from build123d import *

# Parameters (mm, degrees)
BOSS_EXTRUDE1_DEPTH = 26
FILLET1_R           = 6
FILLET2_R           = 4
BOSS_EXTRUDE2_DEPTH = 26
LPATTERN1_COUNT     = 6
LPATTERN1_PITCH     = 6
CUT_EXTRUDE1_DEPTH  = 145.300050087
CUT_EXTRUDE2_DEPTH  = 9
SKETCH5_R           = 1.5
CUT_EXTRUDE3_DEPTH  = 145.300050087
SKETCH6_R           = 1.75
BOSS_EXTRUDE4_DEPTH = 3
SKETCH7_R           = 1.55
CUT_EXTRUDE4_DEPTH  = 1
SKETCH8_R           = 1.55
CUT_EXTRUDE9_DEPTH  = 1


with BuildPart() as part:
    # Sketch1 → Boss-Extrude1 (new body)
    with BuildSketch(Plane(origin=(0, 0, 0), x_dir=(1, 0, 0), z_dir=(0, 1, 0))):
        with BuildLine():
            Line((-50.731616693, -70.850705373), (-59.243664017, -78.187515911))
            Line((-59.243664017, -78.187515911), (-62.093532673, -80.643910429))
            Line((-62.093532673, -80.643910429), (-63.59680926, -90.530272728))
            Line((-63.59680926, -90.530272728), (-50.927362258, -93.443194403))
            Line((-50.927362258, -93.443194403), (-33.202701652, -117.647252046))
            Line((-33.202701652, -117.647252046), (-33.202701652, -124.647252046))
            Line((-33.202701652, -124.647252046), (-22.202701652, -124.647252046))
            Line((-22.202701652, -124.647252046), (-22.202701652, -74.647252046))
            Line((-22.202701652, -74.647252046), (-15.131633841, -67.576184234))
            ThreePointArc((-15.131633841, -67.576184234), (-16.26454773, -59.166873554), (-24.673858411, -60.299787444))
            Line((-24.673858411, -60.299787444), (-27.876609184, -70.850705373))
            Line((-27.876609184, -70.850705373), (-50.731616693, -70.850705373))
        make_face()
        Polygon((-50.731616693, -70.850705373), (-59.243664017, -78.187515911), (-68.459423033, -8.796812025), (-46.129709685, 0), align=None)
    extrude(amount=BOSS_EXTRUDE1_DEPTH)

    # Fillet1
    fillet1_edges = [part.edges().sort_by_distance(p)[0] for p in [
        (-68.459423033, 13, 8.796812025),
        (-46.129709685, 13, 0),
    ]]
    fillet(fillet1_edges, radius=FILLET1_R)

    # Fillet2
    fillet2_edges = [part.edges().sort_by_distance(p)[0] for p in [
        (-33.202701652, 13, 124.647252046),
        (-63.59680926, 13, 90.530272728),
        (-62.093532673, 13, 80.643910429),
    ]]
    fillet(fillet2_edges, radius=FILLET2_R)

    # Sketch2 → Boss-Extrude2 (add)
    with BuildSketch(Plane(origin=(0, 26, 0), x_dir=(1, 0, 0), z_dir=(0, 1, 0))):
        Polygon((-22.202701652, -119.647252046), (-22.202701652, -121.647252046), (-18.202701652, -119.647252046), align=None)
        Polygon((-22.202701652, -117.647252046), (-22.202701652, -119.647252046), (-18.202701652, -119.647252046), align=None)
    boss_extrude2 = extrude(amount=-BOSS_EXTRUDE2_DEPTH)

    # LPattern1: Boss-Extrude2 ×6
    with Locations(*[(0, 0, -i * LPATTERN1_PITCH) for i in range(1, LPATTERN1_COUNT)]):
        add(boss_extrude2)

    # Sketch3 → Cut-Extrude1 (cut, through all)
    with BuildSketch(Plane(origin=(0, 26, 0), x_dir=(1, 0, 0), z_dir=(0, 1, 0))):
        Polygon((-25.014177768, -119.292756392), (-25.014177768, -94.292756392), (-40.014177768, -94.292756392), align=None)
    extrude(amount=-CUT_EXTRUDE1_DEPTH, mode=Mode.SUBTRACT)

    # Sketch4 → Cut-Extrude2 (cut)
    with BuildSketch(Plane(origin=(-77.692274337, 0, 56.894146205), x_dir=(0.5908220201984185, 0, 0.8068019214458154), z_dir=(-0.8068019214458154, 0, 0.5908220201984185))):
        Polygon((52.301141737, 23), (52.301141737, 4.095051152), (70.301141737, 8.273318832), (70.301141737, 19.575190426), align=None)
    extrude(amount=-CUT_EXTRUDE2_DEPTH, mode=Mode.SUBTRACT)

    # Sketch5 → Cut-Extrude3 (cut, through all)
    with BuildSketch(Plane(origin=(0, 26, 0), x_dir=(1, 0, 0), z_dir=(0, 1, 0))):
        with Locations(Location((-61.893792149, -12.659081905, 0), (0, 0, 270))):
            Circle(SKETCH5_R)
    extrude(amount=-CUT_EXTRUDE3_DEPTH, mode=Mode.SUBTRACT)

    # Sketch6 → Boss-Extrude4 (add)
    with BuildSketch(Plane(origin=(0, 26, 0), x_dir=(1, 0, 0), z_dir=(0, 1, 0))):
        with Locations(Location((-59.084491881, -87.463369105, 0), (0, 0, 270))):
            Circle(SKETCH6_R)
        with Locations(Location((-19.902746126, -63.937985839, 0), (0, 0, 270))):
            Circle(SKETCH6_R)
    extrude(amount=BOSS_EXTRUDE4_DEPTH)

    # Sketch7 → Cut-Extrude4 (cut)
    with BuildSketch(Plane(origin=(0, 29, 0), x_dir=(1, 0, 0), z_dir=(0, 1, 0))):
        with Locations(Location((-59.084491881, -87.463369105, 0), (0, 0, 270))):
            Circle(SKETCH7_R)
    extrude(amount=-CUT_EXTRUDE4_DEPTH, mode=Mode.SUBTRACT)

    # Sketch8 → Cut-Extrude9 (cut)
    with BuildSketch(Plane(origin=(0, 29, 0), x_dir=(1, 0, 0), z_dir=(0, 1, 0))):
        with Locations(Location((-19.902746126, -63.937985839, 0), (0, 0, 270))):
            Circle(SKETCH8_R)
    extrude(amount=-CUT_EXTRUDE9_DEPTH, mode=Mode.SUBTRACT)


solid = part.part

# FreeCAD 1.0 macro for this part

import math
import FreeCAD as App
import Part
import Sketcher

V = App.Vector
Q = App.Units.Quantity


def edges_at(feature, points):
    """Names of the edges that pass closest to the given points."""
    edges = feature.Shape.Edges
    near = lambda p: min(range(len(edges)), key=lambda i: edges[i].distToShape(Part.Vertex(*p))[0])
    return sorted({f"Edge{near(p) + 1}" for p in points})


def add_polygon(sketch, points):
    """Adds a closed chain of lines whose ends are joined by coincident constraints."""
    first, n = sketch.GeometryCount, len(points)
    for a, b in zip(points, points[1:] + points[:1]):
        sketch.addGeometry(Part.LineSegment(App.Vector(*a, 0), App.Vector(*b, 0)), False)
    for i in range(n):
        sketch.addConstraint(Sketcher.Constraint("Coincident", first + i, 2, first + (i + 1) % n, 1))

doc = App.newDocument("Part")
body = doc.addObject("PartDesign::Body", "Body")

# Sketch on XZ plane
sketch1 = doc.addObject("Sketcher::SketchObject", "Sketch")
body.addObject(sketch1)
sketch1.AttachmentSupport = (doc.XZ_Plane, [""])
sketch1.MapMode = "FlatFace"
sketch1.addGeometry(Part.LineSegment(V(-59.2, 78.2, 0), V(-62.1, 80.6, 0)), False)
sketch1.addGeometry(Part.LineSegment(V(-62.1, 80.6, 0), V(-63.6, 90.5, 0)), False)
sketch1.addGeometry(Part.LineSegment(V(-63.6, 90.5, 0), V(-50.9, 93.4, 0)), False)
sketch1.addGeometry(Part.LineSegment(V(-50.9, 93.4, 0), V(-33.2, 117.6, 0)), False)
sketch1.addGeometry(Part.LineSegment(V(-33.2, 117.6, 0), V(-33.2, 124.6, 0)), False)
sketch1.addGeometry(Part.LineSegment(V(-33.2, 124.6, 0), V(-22.2, 124.6, 0)), False)
sketch1.addGeometry(Part.LineSegment(V(-22.2, 124.6, 0), V(-22.2, 74.6, 0)), False)
sketch1.addGeometry(Part.LineSegment(V(-22.2, 74.6, 0), V(-15.1, 67.6, 0)), False)
sketch1.addGeometry(Part.ArcOfCircle(Part.Circle(V(-19.9, 63.9, 0), V(0, 0, 1), 6), math.radians(-143), math.radians(37)), False)
sketch1.addGeometry(Part.LineSegment(V(-24.7, 60.3, 0), V(-27.9, 70.9, 0)), False)
sketch1.addGeometry(Part.LineSegment(V(-27.9, 70.9, 0), V(-50.7, 70.9, 0)), False)
sketch1.addGeometry(Part.LineSegment(V(-50.7, 70.9, 0), V(-46.1, 0, 0)), False)
sketch1.addGeometry(Part.LineSegment(V(-46.1, 0, 0), V(-68.5, 8.8, 0)), False)
sketch1.addGeometry(Part.LineSegment(V(-68.5, 8.8, 0), V(-59.2, 78.2, 0)), False)
sketch1.addConstraint(Sketcher.Constraint("Coincident", 0, 2, 1, 1))
sketch1.addConstraint(Sketcher.Constraint("Coincident", 1, 2, 2, 1))
sketch1.addConstraint(Sketcher.Constraint("Coincident", 2, 2, 3, 1))
sketch1.addConstraint(Sketcher.Constraint("Coincident", 3, 2, 4, 1))
sketch1.addConstraint(Sketcher.Constraint("Coincident", 4, 2, 5, 1))
sketch1.addConstraint(Sketcher.Constraint("Coincident", 5, 2, 6, 1))
sketch1.addConstraint(Sketcher.Constraint("Coincident", 6, 2, 7, 1))
sketch1.addConstraint(Sketcher.Constraint("Coincident", 7, 2, 8, 2))
sketch1.addConstraint(Sketcher.Constraint("Coincident", 8, 1, 9, 1))
sketch1.addConstraint(Sketcher.Constraint("Coincident", 9, 2, 10, 1))
sketch1.addConstraint(Sketcher.Constraint("Coincident", 10, 2, 11, 1))
sketch1.addConstraint(Sketcher.Constraint("Coincident", 11, 2, 12, 1))
sketch1.addConstraint(Sketcher.Constraint("Coincident", 12, 2, 13, 1))
sketch1.addConstraint(Sketcher.Constraint("Coincident", 13, 2, 0, 1))
sketch1.addConstraint(Sketcher.Constraint("Vertical", 4))
sketch1.addConstraint(Sketcher.Constraint("Horizontal", 5))
sketch1.addConstraint(Sketcher.Constraint("Vertical", 6))
sketch1.addConstraint(Sketcher.Constraint("Horizontal", 10))
sketch1.addConstraint(Sketcher.Constraint("PointOnObject", 11, 2, -1))
sketch1.addConstraint(Sketcher.Constraint("Equal", 1, 7))
sketch1.addConstraint(Sketcher.Constraint("Radius", 8, Q("6 mm")))
sketch1.addConstraint(Sketcher.Constraint("DistanceX", 5, 1, 5, 2, Q("11 mm")))
sketch1.addConstraint(Sketcher.Constraint("DistanceY", 4, 1, 4, 2, Q("7 mm")))
sketch1.addConstraint(Sketcher.Constraint("DistanceY", 6, 2, 6, 1, Q("50 mm")))
sketch1.addConstraint(Sketcher.Constraint("Angle", 7, Q("-45 deg")))
sketch1.addConstraint(Sketcher.Constraint("Distance", 1, Q("10 mm")))
sketch1.addConstraint(Sketcher.Constraint("Distance", 2, Q("13 mm")))
sketch1.addConstraint(Sketcher.Constraint("Distance", 3, Q("30 mm")))
sketch1.addConstraint(Sketcher.Constraint("Distance", 11, Q("71 mm")))
sketch1.addConstraint(Sketcher.Constraint("Distance", 12, Q("24 mm")))
sketch1.addConstraint(Sketcher.Constraint("Distance", 13, Q("70 mm")))
sketch1.addConstraint(Sketcher.Constraint("DistanceX", 3, 2, -1, 1, Q("33.202702 mm")))
sketch1.addConstraint(Sketcher.Constraint("DistanceY", 8, 3, 7, 2, Q("3.638198 mm")))
sketch1.addConstraint(Sketcher.Constraint("DistanceX", 0, 2, 7, 2, Q("46.961899 mm")))
sketch1.addConstraint(Sketcher.Constraint("DistanceY", 8, 1, 8, 3, Q("3.638198 mm")))
sketch1.addConstraint(Sketcher.Constraint("DistanceX", 11, 2, 9, 2, Q("18.253101 mm")))
sketch1.addConstraint(Sketcher.Constraint("DistanceY", 12, 2, 0, 2, Q("71.847098 mm")))
sketch1.addConstraint(Sketcher.Constraint("DistanceX", 13, 2, 2, 2, Q("8.316302 mm")))
sketch1.addConstraint(Sketcher.Constraint("Distance", 9, Q("11.026309 mm")))
sketch1.addConstraint(Sketcher.Constraint("DistanceX", 10, 2, 10, 1, Q("22.855008 mm")))
sketch1.addConstraint(Sketcher.Constraint("DistanceY", -1, 1, 0, 2, Q("80.64391 mm")))
sketch1.addConstraint(Sketcher.Constraint("DistanceX", 1, 2, -1, 1, Q("63.596809 mm")))
sketch1.addConstraint(Sketcher.Constraint("DistanceX", 9, 2, -1, 1, Q("27.876609 mm")))
pad1 = doc.addObject("PartDesign::Pad", "Pad")
body.addObject(pad1)
pad1.Profile = sketch1
pad1.Length = 26
pad1.Reversed = True
doc.recompute()

fillet = doc.addObject("PartDesign::Fillet", "Fillet")
body.addObject(fillet)
fillet.Base = (pad1, edges_at(pad1, [(-68.459, 13, 8.797), (-46.13, 13, 0)]))
fillet.Radius = 6
doc.recompute()

fillet2 = doc.addObject("PartDesign::Fillet", "Fillet001")
body.addObject(fillet2)
fillet2.Base = (fillet, edges_at(fillet, [(-33.203, 13, 124.647), (-63.597, 13, 90.53), (-62.094, 13, 80.644)]))
fillet2.Radius = 4

# Sketch on XZ plane
sketch2 = doc.addObject("Sketcher::SketchObject", "Sketch001")
body.addObject(sketch2)
sketch2.AttachmentSupport = (doc.XZ_Plane, [""])
sketch2.MapMode = "FlatFace"
sketch2.AttachmentOffset = App.Placement(V(0, 0, -26), App.Rotation())
add_polygon(sketch2, [(-22.2, 121.6), (-18.2, 119.6), (-22.2, 117.6)])  # lines 0-2
sketch2.addConstraint(Sketcher.Constraint("Vertical", 2))
sketch2.addConstraint(Sketcher.Constraint("Equal", 0, 1))
sketch2.addConstraint(Sketcher.Constraint("DistanceY", 2, 1, 2, 2, Q("4 mm")))
sketch2.addConstraint(Sketcher.Constraint("DistanceX", 1, 2, 0, 2, Q("4 mm")))
sketch2.addConstraint(Sketcher.Constraint("DistanceX", 0, 2, -1, 1, Q("18.202702 mm")))
sketch2.addConstraint(Sketcher.Constraint("DistanceY", -1, 1, 0, 2, Q("119.647252 mm")))
pad2 = doc.addObject("PartDesign::Pad", "Pad001")
body.addObject(pad2)
pad2.Profile = sketch2
pad2.Length = 26
doc.recompute()

linearpattern = doc.addObject("PartDesign::LinearPattern", "LinearPattern")
body.addObject(linearpattern)
linearpattern.Originals = [pad2]
linearpattern.Direction = (doc.Z_Axis, [""])
linearpattern.Mode = "offset"
linearpattern.Offset = 6
linearpattern.Occurrences = 6
linearpattern.Reversed = True
body.Tip = linearpattern

# Sketch on XZ plane
sketch3 = doc.addObject("Sketcher::SketchObject", "Sketch002")
body.addObject(sketch3)
sketch3.AttachmentSupport = (doc.XZ_Plane, [""])
sketch3.MapMode = "FlatFace"
sketch3.AttachmentOffset = App.Placement(V(0, 0, -26), App.Rotation())
add_polygon(sketch3, [(-25, 119), (-25, 94), (-40, 94)])  # lines 0-2
sketch3.addConstraint(Sketcher.Constraint("Vertical", 0))
sketch3.addConstraint(Sketcher.Constraint("Horizontal", 1))
sketch3.addConstraint(Sketcher.Constraint("DistanceX", 1, 2, 1, 1, Q("15 mm")))
sketch3.addConstraint(Sketcher.Constraint("DistanceY", 0, 2, 0, 1, Q("25 mm")))
sketch3.addConstraint(Sketcher.Constraint("DistanceX", 0, 2, -1, 1, Q("25.014178 mm")))
sketch3.addConstraint(Sketcher.Constraint("DistanceY", -1, 1, 0, 2, Q("94.292756 mm")))
pocket1 = doc.addObject("PartDesign::Pocket", "Pocket")
body.addObject(pocket1)
pocket1.Profile = sketch3
pocket1.Type = "ThroughAll"
pocket1.Reversed = True

# Sketch on an angled plane
sketch4 = doc.addObject("Sketcher::SketchObject", "Sketch003")
body.addObject(sketch4)
sketch4.Placement = App.Placement(V(-77.692274, 0, 56.894146), App.Rotation(V(0.59082202, 0, 0.806801921), V(0, 0.999999999, 0), V(-0.806801921, 0, 0.59082202), "ZXY"))
add_polygon(sketch4, [(52, 23), (52, 4), (70, 8), (70, 20)])  # lines 0-3
sketch4.addConstraint(Sketcher.Constraint("Vertical", 0))
sketch4.addConstraint(Sketcher.Constraint("Vertical", 2))
sketch4.addConstraint(Sketcher.Constraint("DistanceY", -1, 1, 3, 2, Q("23 mm")))
sketch4.addConstraint(Sketcher.Constraint("DistanceX", 0, 2, 1, 2, Q("18 mm")))
sketch4.addConstraint(Sketcher.Constraint("DistanceY", 0, 2, 0, 1, Q("18.904949 mm")))
sketch4.addConstraint(Sketcher.Constraint("DistanceY", 2, 1, 2, 2, Q("11.301872 mm")))
sketch4.addConstraint(Sketcher.Constraint("Distance", 1, Q("18.47858 mm")))
sketch4.addConstraint(Sketcher.Constraint("DistanceX", -1, 1, 0, 2, Q("52.301142 mm")))
pocket2 = doc.addObject("PartDesign::Pocket", "Pocket001")
body.addObject(pocket2)
pocket2.Profile = sketch4
pocket2.Length = 9

# Sketch on XZ plane
sketch5 = doc.addObject("Sketcher::SketchObject", "Sketch004")
body.addObject(sketch5)
sketch5.AttachmentSupport = (doc.XZ_Plane, [""])
sketch5.MapMode = "FlatFace"
sketch5.AttachmentOffset = App.Placement(V(0, 0, -26), App.Rotation())
sketch5.addGeometry(Part.Circle(V(-61.9, 12.7, 0), V(0, 0, 1), 1.5), False)
sketch5.addConstraint(Sketcher.Constraint("Diameter", 0, Q("3 mm")))
sketch5.addConstraint(Sketcher.Constraint("DistanceY", -1, 1, 0, 3, Q("12.659082 mm")))
sketch5.addConstraint(Sketcher.Constraint("DistanceX", 0, 3, -1, 1, Q("61.893792 mm")))
pocket3 = doc.addObject("PartDesign::Pocket", "Pocket002")
body.addObject(pocket3)
pocket3.Profile = sketch5
pocket3.Type = "ThroughAll"
pocket3.Reversed = True

# Sketch on XZ plane
sketch6 = doc.addObject("Sketcher::SketchObject", "Sketch005")
body.addObject(sketch6)
sketch6.AttachmentSupport = (doc.XZ_Plane, [""])
sketch6.MapMode = "FlatFace"
sketch6.AttachmentOffset = App.Placement(V(0, 0, -26), App.Rotation())
sketch6.addGeometry(Part.Circle(V(-59.1, 87.5, 0), V(0, 0, 1), 1.8), False)
sketch6.addGeometry(Part.Circle(V(-19.9, 63.9, 0), V(0, 0, 1), 1.8), False)
sketch6.addConstraint(Sketcher.Constraint("Equal", 0, 1))
sketch6.addConstraint(Sketcher.Constraint("Diameter", 0, Q("3.5 mm")))
sketch6.addConstraint(Sketcher.Constraint("DistanceX", 0, 3, -1, 1, Q("59.084492 mm")))
sketch6.addConstraint(Sketcher.Constraint("DistanceY", -1, 1, 0, 3, Q("87.463369 mm")))
sketch6.addConstraint(Sketcher.Constraint("DistanceX", 1, 3, -1, 1, Q("19.902746 mm")))
sketch6.addConstraint(Sketcher.Constraint("DistanceY", -1, 1, 1, 3, Q("63.937986 mm")))
pad3 = doc.addObject("PartDesign::Pad", "Pad002")
body.addObject(pad3)
pad3.Profile = sketch6
pad3.Length = 3
pad3.Reversed = True

# Sketch on XZ plane
sketch7 = doc.addObject("Sketcher::SketchObject", "Sketch006")
body.addObject(sketch7)
sketch7.AttachmentSupport = (doc.XZ_Plane, [""])
sketch7.MapMode = "FlatFace"
sketch7.AttachmentOffset = App.Placement(V(0, 0, -29), App.Rotation())
sketch7.addGeometry(Part.Circle(V(-59.1, 87.5, 0), V(0, 0, 1), 1.6), False)
sketch7.addConstraint(Sketcher.Constraint("Diameter", 0, Q("3.1 mm")))
sketch7.addConstraint(Sketcher.Constraint("DistanceX", 0, 3, -1, 1, Q("59.084492 mm")))
sketch7.addConstraint(Sketcher.Constraint("DistanceY", -1, 1, 0, 3, Q("87.463369 mm")))
pocket4 = doc.addObject("PartDesign::Pocket", "Pocket003")
body.addObject(pocket4)
pocket4.Profile = sketch7
pocket4.Length = 1
pocket4.Reversed = True

# Sketch on XZ plane
sketch8 = doc.addObject("Sketcher::SketchObject", "Sketch007")
body.addObject(sketch8)
sketch8.AttachmentSupport = (doc.XZ_Plane, [""])
sketch8.MapMode = "FlatFace"
sketch8.AttachmentOffset = App.Placement(V(0, 0, -29), App.Rotation())
sketch8.addGeometry(Part.Circle(V(-19.9, 63.9, 0), V(0, 0, 1), 1.6), False)
sketch8.addConstraint(Sketcher.Constraint("Diameter", 0, Q("3.1 mm")))
sketch8.addConstraint(Sketcher.Constraint("DistanceX", 0, 3, -1, 1, Q("19.902746 mm")))
sketch8.addConstraint(Sketcher.Constraint("DistanceY", -1, 1, 0, 3, Q("63.937986 mm")))
pocket5 = doc.addObject("PartDesign::Pocket", "Pocket004")
body.addObject(pocket5)
pocket5.Profile = sketch8
pocket5.Length = 1
pocket5.Reversed = True

doc.recompute()
